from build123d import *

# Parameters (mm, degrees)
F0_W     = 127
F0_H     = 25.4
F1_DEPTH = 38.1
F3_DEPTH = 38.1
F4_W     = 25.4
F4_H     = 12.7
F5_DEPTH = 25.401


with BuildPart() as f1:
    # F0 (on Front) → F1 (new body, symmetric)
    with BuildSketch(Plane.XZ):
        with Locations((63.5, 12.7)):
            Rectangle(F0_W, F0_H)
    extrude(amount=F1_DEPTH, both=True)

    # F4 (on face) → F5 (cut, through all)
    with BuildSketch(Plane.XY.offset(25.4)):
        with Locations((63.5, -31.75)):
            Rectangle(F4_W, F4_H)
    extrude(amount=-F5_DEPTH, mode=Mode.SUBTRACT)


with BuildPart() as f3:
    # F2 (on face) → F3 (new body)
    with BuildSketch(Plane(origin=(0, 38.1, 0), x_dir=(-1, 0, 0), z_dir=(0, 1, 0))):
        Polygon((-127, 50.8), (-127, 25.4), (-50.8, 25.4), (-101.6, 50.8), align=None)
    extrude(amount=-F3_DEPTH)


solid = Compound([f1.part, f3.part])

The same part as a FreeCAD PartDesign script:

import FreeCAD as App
import Part
import Sketcher

V = App.Vector
Q = App.Units.Quantity

doc = App.newDocument("Part")
body = doc.addObject("PartDesign::Body", "Body")

# Sketch on XZ plane
sketch1 = body.newObject("Sketcher::SketchObject", "Sketch")
sketch1.AttachmentSupport = (doc.getObject("XZ_Plane"), [""])
sketch1.MapMode = "FlatFace"
sketch1.addGeometry(Part.LineSegment(V(0, 25, 0), V(0, 0, 0)), False)
sketch1.addGeometry(Part.LineSegment(V(0, 0, 0), V(127, 0, 0)), False)
sketch1.addGeometry(Part.LineSegment(V(127, 0, 0), V(127, 25, 0)), False)
sketch1.addGeometry(Part.LineSegment(V(127, 25, 0), V(0, 25, 0)), False)
sketch1.addConstraint(Sketcher.Constraint("Coincident", 0, 2, 1, 1))
sketch1.addConstraint(Sketcher.Constraint("Coincident", 1, 2, 2, 1))
sketch1.addConstraint(Sketcher.Constraint("Coincident", 2, 2, 3, 1))
sketch1.addConstraint(Sketcher.Constraint("Coincident", 3, 2, 0, 1))
sketch1.addConstraint(Sketcher.Constraint("Vertical", 0))
sketch1.addConstraint(Sketcher.Constraint("Horizontal", 1))
sketch1.addConstraint(Sketcher.Constraint("Vertical", 2))
sketch1.addConstraint(Sketcher.Constraint("Horizontal", 3))
sketch1.addConstraint(Sketcher.Constraint("Coincident", 0, 2, -1, 1))
sketch1.addConstraint(Sketcher.Constraint("DistanceX", 1, 1, 1, 2, Q("5 in")))
sketch1.addConstraint(Sketcher.Constraint("DistanceY", 0, 2, 0, 1, Q("1 in")))
pad1 = body.newObject("PartDesign::Pad", "Pad")
pad1.Profile = sketch1
pad1.Length = Q("3 in")
pad1.Midplane = True

# Sketch on XY plane
sketch2 = body.newObject("Sketcher::SketchObject", "Sketch001")
sketch2.AttachmentSupport = (doc.getObject("XY_Plane"), [""])
sketch2.MapMode = "FlatFace"
sketch2.AttachmentOffset = App.Placement(V(0, 0, 1 * 25.4), App.Rotation())
sketch2.addGeometry(Part.LineSegment(V(51, -25, 0), V(51, -38, 0)), False)
sketch2.addGeometry(Part.LineSegment(V(51, -38, 0), V(76, -38, 0)), False)
sketch2.addGeometry(Part.LineSegment(V(76, -38, 0), V(76, -25, 0)), False)
sketch2.addGeometry(Part.LineSegment(V(76, -25, 0), V(51, -25, 0)), False)
sketch2.addConstraint(Sketcher.Constraint("Coincident", 0, 2, 1, 1))
sketch2.addConstraint(Sketcher.Constraint("Coincident", 1, 2, 2, 1))
sketch2.addConstraint(Sketcher.Constraint("Coincident", 2, 2, 3, 1))
sketch2.addConstraint(Sketcher.Constraint("Coincident", 3, 2, 0, 1))
sketch2.addConstraint(Sketcher.Constraint("Vertical", 0))
sketch2.addConstraint(Sketcher.Constraint("Horizontal", 1))
sketch2.addConstraint(Sketcher.Constraint("Vertical", 2))
sketch2.addConstraint(Sketcher.Constraint("Horizontal", 3))
sketch2.addConstraint(Sketcher.Constraint("DistanceX", 1, 1, 1, 2, Q("1 in")))
sketch2.addConstraint(Sketcher.Constraint("DistanceY", 0, 2, 0, 1, Q("0.5 in")))
sketch2.addConstraint(Sketcher.Constraint("DistanceX", -1, 1, 0, 2, Q("2 in")))
sketch2.addConstraint(Sketcher.Constraint("DistanceY", 2, 2, -1, 1, Q("1 in")))
pocket1 = body.newObject("PartDesign::Pocket", "Pocket")
pocket1.Profile = sketch2
pocket1.Type = "ThroughAll"
body2 = doc.addObject("PartDesign::Body", "Body001")

# Sketch on XZ plane
sketch3 = body2.newObject("Sketcher::SketchObject", "Sketch002")
sketch3.AttachmentSupport = (doc.getObject("XZ_Plane001"), [""])
sketch3.MapMode = "FlatFace"
sketch3.AttachmentOffset = App.Placement(V(0, 0, -1.5 * 25.4), App.Rotation())
sketch3.addGeometry(Part.LineSegment(V(127, 51, 0), V(127, 25, 0)), False)
sketch3.addGeometry(Part.LineSegment(V(127, 25, 0), V(51, 25, 0)), False)
sketch3.addGeometry(Part.LineSegment(V(51, 25, 0), V(102, 51, 0)), False)
sketch3.addGeometry(Part.LineSegment(V(102, 51, 0), V(127, 51, 0)), False)
sketch3.addConstraint(Sketcher.Constraint("Coincident", 0, 2, 1, 1))
sketch3.addConstraint(Sketcher.Constraint("Coincident", 1, 2, 2, 1))
sketch3.addConstraint(Sketcher.Constraint("Coincident", 2, 2, 3, 1))
sketch3.addConstraint(Sketcher.Constraint("Coincident", 3, 2, 0, 1))
sketch3.addConstraint(Sketcher.Constraint("Vertical", 0))
sketch3.addConstraint(Sketcher.Constraint("Horizontal", 1))
sketch3.addConstraint(Sketcher.Constraint("Horizontal", 3))
sketch3.addConstraint(Sketcher.Constraint("Equal", 3, 0))
sketch3.addConstraint(Sketcher.Constraint("DistanceX", 1, 2, 1, 1, Q("3 in")))
sketch3.addConstraint(Sketcher.Constraint("DistanceX", 3, 1, 3, 2, Q("1 in")))
sketch3.addConstraint(Sketcher.Constraint("DistanceX", -1, 1, 0, 2, Q("5 in")))
sketch3.addConstraint(Sketcher.Constraint("DistanceY", -1, 1, 0, 2, Q("1 in")))
pad2 = body2.newObject("PartDesign::Pad", "Pad001")
pad2.Profile = sketch3
pad2.Length = Q("1.5 in")

doc.recompute()
